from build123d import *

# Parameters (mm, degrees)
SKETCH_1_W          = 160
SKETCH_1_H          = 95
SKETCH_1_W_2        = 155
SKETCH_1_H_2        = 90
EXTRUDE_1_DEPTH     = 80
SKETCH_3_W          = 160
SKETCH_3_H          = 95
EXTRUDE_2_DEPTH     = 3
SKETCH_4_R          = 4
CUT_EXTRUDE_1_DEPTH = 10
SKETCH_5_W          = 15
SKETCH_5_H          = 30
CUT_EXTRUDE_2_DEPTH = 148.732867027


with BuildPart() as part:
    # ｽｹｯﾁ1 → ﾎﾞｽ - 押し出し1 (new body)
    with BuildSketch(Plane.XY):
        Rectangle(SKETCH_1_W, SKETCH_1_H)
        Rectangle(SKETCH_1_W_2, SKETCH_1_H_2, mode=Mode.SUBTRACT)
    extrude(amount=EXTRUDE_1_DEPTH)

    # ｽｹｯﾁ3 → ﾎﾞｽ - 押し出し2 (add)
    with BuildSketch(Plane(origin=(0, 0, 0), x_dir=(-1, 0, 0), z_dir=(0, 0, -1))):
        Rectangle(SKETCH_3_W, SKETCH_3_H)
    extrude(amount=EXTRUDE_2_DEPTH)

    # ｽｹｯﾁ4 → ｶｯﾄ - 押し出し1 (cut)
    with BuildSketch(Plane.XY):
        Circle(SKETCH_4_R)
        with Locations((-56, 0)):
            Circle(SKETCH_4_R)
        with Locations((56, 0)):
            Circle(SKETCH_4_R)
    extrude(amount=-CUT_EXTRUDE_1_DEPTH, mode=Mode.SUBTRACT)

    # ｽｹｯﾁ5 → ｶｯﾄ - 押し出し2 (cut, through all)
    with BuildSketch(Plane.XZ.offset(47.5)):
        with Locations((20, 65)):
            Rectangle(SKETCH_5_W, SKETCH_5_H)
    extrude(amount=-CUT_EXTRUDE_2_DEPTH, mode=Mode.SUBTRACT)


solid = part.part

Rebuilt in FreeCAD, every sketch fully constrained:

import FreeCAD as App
import Part
import Sketcher


def add_polygon(sketch, points):
    """Adds a closed chain of lines whose ends are joined by coincident constraints."""
    first, n = sketch.GeometryCount, len(points)
    for a, b in zip(points, points[1:] + points[:1]):
        sketch.addGeometry(Part.LineSegment(App.Vector(*a, 0), App.Vector(*b, 0)), False)
    for i in range(n):
        sketch.addConstraint(Sketcher.Constraint("Coincident", first + i, 2, first + (i + 1) % n, 1))

doc = App.newDocument("Part")
params = doc.addObject("Spreadsheet::Sheet", "Params")
for row, (alias, value) in enumerate([
    ("sketch1_width", "160 mm"),
    ("sketch1_width2", "155 mm"),
    ("sketch1_height", "95 mm"),
    ("sketch1_height2", "90 mm"),
    ("pad1_length", "80 mm"),
    ("sketch2_width", "160 mm"),
    ("sketch2_height", "95 mm"),
    ("pad2_length", "3 mm"),
    ("sketch3_diameter", "8 mm"),
    ("pocket1_length", "10 mm"),
    ("sketch4_width", "15 mm"),
    ("sketch4_height", "30 mm"),
], start=1):
    params.set(f"A{row}", alias)
    params.set(f"B{row}", "=" + value)
    params.setAlias(f"B{row}", alias)

body = doc.addObject("PartDesign::Body", "Body")

sketch1 = body.newObject("Sketcher::SketchObject", "Sketch")
sketch1.AttachmentSupport = (doc.getObject("XY_Plane"), [""])
sketch1.MapMode = "FlatFace"
add_polygon(sketch1, [(-80, 48), (-80, -48), (80, -48), (80, 48)])
add_polygon(sketch1, [(78, -45), (-78, -45), (-78, 45), (78, 45)])
sketch1.addConstraint([
    Sketcher.Constraint("Vertical", 0),
    Sketcher.Constraint("Horizontal", 1),
    Sketcher.Constraint("Vertical", 2),
    Sketcher.Constraint("Horizontal", 3),
    Sketcher.Constraint("Horizontal", 4),
    Sketcher.Constraint("Vertical", 5),
    Sketcher.Constraint("Horizontal", 6),
    Sketcher.Constraint("Vertical", 7),
    Sketcher.Constraint("Symmetric", 0, 2, 2, 2, -1, 1),
    Sketcher.Constraint("Symmetric", 4, 2, 6, 2, -1, 1),
    Sketcher.Constraint("DistanceX", 1, 1, 1, 2, 160.0),
    Sketcher.Constraint("DistanceX", 4, 2, 4, 1, 155.0),
    Sketcher.Constraint("DistanceY", 0, 2, 0, 1, 95.0),
    Sketcher.Constraint("DistanceY", 5, 1, 5, 2, 90.0),
])
sketch1.setExpression("Constraints[18]", "Params.sketch1_width")
sketch1.setExpression("Constraints[19]", "Params.sketch1_width2")
sketch1.setExpression("Constraints[20]", "Params.sketch1_height")
sketch1.setExpression("Constraints[21]", "Params.sketch1_height2")
pad1 = body.newObject("PartDesign::Pad", "Pad")
pad1.Profile = sketch1
pad1.setExpression("Length", "Params.pad1_length")

sketch2 = body.newObject("Sketcher::SketchObject", "Sketch001")
sketch2.AttachmentSupport = (doc.getObject("XY_Plane"), [""])
sketch2.MapMode = "FlatFace"
add_polygon(sketch2, [(80, 48), (80, -48), (-80, -48), (-80, 48)])
sketch2.addConstraint([
    Sketcher.Constraint("Vertical", 0),
    Sketcher.Constraint("Horizontal", 1),
    Sketcher.Constraint("Vertical", 2),
    Sketcher.Constraint("Horizontal", 3),
    Sketcher.Constraint("Symmetric", 0, 2, 2, 2, -1, 1),
    Sketcher.Constraint("DistanceX", 1, 2, 1, 1, 160.0),
    Sketcher.Constraint("DistanceY", 0, 2, 0, 1, 95.0),
])
sketch2.setExpression("Constraints[9]", "Params.sketch2_width")
sketch2.setExpression("Constraints[10]", "Params.sketch2_height")
pad2 = body.newObject("PartDesign::Pad", "Pad001")
pad2.Profile = sketch2
pad2.setExpression("Length", "Params.pad2_length")
pad2.Reversed = True

sketch3 = body.newObject("Sketcher::SketchObject", "Sketch002")
sketch3.AttachmentSupport = (doc.getObject("XY_Plane"), [""])
sketch3.MapMode = "FlatFace"
sketch3.addGeometry([
    Part.Circle(App.Vector(0, 0, 0), App.Vector(0, 0, 1), 4),
    Part.Circle(App.Vector(-56, 0, 0), App.Vector(0, 0, 1), 4),
    Part.Circle(App.Vector(56, 0, 0), App.Vector(0, 0, 1), 4),
], False)
sketch3.addConstraint([
    Sketcher.Constraint("Coincident", 0, 3, -1, 1),
    Sketcher.Constraint("Equal", 0, 1),
    Sketcher.Constraint("Equal", 1, 2),
    Sketcher.Constraint("Symmetric", 1, 3, 2, 3, -1, 1),
    Sketcher.Constraint("PointOnObject", 1, 3, -1),
    Sketcher.Constraint("Diameter", 0, 8.0),
    Sketcher.Constraint("DistanceX", 1, 3, -1, 1, 56.0),
])
sketch3.setExpression("Constraints[5]", "Params.sketch3_diameter")
pocket1 = body.newObject("PartDesign::Pocket", "Pocket")
pocket1.Profile = sketch3
pocket1.setExpression("Length", "Params.pocket1_length")

sketch4 = body.newObject("Sketcher::SketchObject", "Sketch003")
sketch4.AttachmentSupport = (doc.getObject("XZ_Plane"), [""])
sketch4.MapMode = "FlatFace"
sketch4.AttachmentOffset = App.Placement(App.Vector(0, 0, 47.5), App.Rotation())
add_polygon(sketch4, [(12, 80), (12, 50), (28, 50), (28, 80)])
sketch4.addConstraint([
    Sketcher.Constraint("Vertical", 0),
    Sketcher.Constraint("Horizontal", 1),
    Sketcher.Constraint("Vertical", 2),
    Sketcher.Constraint("Horizontal", 3),
    Sketcher.Constraint("DistanceX", 1, 1, 1, 2, 15.0),
    Sketcher.Constraint("DistanceY", 0, 2, 0, 1, 30.0),
    Sketcher.Constraint("DistanceY", -1, 1, 0, 2, 50.0),
    Sketcher.Constraint("DistanceX", -1, 1, 0, 2, 12.5),
])
sketch4.setExpression("Constraints[8]", "Params.sketch4_width")
sketch4.setExpression("Constraints[9]", "Params.sketch4_height")
pocket2 = body.newObject("PartDesign::Pocket", "Pocket001")
pocket2.Profile = sketch4
pocket2.Type = "ThroughAll"

doc.recompute()
